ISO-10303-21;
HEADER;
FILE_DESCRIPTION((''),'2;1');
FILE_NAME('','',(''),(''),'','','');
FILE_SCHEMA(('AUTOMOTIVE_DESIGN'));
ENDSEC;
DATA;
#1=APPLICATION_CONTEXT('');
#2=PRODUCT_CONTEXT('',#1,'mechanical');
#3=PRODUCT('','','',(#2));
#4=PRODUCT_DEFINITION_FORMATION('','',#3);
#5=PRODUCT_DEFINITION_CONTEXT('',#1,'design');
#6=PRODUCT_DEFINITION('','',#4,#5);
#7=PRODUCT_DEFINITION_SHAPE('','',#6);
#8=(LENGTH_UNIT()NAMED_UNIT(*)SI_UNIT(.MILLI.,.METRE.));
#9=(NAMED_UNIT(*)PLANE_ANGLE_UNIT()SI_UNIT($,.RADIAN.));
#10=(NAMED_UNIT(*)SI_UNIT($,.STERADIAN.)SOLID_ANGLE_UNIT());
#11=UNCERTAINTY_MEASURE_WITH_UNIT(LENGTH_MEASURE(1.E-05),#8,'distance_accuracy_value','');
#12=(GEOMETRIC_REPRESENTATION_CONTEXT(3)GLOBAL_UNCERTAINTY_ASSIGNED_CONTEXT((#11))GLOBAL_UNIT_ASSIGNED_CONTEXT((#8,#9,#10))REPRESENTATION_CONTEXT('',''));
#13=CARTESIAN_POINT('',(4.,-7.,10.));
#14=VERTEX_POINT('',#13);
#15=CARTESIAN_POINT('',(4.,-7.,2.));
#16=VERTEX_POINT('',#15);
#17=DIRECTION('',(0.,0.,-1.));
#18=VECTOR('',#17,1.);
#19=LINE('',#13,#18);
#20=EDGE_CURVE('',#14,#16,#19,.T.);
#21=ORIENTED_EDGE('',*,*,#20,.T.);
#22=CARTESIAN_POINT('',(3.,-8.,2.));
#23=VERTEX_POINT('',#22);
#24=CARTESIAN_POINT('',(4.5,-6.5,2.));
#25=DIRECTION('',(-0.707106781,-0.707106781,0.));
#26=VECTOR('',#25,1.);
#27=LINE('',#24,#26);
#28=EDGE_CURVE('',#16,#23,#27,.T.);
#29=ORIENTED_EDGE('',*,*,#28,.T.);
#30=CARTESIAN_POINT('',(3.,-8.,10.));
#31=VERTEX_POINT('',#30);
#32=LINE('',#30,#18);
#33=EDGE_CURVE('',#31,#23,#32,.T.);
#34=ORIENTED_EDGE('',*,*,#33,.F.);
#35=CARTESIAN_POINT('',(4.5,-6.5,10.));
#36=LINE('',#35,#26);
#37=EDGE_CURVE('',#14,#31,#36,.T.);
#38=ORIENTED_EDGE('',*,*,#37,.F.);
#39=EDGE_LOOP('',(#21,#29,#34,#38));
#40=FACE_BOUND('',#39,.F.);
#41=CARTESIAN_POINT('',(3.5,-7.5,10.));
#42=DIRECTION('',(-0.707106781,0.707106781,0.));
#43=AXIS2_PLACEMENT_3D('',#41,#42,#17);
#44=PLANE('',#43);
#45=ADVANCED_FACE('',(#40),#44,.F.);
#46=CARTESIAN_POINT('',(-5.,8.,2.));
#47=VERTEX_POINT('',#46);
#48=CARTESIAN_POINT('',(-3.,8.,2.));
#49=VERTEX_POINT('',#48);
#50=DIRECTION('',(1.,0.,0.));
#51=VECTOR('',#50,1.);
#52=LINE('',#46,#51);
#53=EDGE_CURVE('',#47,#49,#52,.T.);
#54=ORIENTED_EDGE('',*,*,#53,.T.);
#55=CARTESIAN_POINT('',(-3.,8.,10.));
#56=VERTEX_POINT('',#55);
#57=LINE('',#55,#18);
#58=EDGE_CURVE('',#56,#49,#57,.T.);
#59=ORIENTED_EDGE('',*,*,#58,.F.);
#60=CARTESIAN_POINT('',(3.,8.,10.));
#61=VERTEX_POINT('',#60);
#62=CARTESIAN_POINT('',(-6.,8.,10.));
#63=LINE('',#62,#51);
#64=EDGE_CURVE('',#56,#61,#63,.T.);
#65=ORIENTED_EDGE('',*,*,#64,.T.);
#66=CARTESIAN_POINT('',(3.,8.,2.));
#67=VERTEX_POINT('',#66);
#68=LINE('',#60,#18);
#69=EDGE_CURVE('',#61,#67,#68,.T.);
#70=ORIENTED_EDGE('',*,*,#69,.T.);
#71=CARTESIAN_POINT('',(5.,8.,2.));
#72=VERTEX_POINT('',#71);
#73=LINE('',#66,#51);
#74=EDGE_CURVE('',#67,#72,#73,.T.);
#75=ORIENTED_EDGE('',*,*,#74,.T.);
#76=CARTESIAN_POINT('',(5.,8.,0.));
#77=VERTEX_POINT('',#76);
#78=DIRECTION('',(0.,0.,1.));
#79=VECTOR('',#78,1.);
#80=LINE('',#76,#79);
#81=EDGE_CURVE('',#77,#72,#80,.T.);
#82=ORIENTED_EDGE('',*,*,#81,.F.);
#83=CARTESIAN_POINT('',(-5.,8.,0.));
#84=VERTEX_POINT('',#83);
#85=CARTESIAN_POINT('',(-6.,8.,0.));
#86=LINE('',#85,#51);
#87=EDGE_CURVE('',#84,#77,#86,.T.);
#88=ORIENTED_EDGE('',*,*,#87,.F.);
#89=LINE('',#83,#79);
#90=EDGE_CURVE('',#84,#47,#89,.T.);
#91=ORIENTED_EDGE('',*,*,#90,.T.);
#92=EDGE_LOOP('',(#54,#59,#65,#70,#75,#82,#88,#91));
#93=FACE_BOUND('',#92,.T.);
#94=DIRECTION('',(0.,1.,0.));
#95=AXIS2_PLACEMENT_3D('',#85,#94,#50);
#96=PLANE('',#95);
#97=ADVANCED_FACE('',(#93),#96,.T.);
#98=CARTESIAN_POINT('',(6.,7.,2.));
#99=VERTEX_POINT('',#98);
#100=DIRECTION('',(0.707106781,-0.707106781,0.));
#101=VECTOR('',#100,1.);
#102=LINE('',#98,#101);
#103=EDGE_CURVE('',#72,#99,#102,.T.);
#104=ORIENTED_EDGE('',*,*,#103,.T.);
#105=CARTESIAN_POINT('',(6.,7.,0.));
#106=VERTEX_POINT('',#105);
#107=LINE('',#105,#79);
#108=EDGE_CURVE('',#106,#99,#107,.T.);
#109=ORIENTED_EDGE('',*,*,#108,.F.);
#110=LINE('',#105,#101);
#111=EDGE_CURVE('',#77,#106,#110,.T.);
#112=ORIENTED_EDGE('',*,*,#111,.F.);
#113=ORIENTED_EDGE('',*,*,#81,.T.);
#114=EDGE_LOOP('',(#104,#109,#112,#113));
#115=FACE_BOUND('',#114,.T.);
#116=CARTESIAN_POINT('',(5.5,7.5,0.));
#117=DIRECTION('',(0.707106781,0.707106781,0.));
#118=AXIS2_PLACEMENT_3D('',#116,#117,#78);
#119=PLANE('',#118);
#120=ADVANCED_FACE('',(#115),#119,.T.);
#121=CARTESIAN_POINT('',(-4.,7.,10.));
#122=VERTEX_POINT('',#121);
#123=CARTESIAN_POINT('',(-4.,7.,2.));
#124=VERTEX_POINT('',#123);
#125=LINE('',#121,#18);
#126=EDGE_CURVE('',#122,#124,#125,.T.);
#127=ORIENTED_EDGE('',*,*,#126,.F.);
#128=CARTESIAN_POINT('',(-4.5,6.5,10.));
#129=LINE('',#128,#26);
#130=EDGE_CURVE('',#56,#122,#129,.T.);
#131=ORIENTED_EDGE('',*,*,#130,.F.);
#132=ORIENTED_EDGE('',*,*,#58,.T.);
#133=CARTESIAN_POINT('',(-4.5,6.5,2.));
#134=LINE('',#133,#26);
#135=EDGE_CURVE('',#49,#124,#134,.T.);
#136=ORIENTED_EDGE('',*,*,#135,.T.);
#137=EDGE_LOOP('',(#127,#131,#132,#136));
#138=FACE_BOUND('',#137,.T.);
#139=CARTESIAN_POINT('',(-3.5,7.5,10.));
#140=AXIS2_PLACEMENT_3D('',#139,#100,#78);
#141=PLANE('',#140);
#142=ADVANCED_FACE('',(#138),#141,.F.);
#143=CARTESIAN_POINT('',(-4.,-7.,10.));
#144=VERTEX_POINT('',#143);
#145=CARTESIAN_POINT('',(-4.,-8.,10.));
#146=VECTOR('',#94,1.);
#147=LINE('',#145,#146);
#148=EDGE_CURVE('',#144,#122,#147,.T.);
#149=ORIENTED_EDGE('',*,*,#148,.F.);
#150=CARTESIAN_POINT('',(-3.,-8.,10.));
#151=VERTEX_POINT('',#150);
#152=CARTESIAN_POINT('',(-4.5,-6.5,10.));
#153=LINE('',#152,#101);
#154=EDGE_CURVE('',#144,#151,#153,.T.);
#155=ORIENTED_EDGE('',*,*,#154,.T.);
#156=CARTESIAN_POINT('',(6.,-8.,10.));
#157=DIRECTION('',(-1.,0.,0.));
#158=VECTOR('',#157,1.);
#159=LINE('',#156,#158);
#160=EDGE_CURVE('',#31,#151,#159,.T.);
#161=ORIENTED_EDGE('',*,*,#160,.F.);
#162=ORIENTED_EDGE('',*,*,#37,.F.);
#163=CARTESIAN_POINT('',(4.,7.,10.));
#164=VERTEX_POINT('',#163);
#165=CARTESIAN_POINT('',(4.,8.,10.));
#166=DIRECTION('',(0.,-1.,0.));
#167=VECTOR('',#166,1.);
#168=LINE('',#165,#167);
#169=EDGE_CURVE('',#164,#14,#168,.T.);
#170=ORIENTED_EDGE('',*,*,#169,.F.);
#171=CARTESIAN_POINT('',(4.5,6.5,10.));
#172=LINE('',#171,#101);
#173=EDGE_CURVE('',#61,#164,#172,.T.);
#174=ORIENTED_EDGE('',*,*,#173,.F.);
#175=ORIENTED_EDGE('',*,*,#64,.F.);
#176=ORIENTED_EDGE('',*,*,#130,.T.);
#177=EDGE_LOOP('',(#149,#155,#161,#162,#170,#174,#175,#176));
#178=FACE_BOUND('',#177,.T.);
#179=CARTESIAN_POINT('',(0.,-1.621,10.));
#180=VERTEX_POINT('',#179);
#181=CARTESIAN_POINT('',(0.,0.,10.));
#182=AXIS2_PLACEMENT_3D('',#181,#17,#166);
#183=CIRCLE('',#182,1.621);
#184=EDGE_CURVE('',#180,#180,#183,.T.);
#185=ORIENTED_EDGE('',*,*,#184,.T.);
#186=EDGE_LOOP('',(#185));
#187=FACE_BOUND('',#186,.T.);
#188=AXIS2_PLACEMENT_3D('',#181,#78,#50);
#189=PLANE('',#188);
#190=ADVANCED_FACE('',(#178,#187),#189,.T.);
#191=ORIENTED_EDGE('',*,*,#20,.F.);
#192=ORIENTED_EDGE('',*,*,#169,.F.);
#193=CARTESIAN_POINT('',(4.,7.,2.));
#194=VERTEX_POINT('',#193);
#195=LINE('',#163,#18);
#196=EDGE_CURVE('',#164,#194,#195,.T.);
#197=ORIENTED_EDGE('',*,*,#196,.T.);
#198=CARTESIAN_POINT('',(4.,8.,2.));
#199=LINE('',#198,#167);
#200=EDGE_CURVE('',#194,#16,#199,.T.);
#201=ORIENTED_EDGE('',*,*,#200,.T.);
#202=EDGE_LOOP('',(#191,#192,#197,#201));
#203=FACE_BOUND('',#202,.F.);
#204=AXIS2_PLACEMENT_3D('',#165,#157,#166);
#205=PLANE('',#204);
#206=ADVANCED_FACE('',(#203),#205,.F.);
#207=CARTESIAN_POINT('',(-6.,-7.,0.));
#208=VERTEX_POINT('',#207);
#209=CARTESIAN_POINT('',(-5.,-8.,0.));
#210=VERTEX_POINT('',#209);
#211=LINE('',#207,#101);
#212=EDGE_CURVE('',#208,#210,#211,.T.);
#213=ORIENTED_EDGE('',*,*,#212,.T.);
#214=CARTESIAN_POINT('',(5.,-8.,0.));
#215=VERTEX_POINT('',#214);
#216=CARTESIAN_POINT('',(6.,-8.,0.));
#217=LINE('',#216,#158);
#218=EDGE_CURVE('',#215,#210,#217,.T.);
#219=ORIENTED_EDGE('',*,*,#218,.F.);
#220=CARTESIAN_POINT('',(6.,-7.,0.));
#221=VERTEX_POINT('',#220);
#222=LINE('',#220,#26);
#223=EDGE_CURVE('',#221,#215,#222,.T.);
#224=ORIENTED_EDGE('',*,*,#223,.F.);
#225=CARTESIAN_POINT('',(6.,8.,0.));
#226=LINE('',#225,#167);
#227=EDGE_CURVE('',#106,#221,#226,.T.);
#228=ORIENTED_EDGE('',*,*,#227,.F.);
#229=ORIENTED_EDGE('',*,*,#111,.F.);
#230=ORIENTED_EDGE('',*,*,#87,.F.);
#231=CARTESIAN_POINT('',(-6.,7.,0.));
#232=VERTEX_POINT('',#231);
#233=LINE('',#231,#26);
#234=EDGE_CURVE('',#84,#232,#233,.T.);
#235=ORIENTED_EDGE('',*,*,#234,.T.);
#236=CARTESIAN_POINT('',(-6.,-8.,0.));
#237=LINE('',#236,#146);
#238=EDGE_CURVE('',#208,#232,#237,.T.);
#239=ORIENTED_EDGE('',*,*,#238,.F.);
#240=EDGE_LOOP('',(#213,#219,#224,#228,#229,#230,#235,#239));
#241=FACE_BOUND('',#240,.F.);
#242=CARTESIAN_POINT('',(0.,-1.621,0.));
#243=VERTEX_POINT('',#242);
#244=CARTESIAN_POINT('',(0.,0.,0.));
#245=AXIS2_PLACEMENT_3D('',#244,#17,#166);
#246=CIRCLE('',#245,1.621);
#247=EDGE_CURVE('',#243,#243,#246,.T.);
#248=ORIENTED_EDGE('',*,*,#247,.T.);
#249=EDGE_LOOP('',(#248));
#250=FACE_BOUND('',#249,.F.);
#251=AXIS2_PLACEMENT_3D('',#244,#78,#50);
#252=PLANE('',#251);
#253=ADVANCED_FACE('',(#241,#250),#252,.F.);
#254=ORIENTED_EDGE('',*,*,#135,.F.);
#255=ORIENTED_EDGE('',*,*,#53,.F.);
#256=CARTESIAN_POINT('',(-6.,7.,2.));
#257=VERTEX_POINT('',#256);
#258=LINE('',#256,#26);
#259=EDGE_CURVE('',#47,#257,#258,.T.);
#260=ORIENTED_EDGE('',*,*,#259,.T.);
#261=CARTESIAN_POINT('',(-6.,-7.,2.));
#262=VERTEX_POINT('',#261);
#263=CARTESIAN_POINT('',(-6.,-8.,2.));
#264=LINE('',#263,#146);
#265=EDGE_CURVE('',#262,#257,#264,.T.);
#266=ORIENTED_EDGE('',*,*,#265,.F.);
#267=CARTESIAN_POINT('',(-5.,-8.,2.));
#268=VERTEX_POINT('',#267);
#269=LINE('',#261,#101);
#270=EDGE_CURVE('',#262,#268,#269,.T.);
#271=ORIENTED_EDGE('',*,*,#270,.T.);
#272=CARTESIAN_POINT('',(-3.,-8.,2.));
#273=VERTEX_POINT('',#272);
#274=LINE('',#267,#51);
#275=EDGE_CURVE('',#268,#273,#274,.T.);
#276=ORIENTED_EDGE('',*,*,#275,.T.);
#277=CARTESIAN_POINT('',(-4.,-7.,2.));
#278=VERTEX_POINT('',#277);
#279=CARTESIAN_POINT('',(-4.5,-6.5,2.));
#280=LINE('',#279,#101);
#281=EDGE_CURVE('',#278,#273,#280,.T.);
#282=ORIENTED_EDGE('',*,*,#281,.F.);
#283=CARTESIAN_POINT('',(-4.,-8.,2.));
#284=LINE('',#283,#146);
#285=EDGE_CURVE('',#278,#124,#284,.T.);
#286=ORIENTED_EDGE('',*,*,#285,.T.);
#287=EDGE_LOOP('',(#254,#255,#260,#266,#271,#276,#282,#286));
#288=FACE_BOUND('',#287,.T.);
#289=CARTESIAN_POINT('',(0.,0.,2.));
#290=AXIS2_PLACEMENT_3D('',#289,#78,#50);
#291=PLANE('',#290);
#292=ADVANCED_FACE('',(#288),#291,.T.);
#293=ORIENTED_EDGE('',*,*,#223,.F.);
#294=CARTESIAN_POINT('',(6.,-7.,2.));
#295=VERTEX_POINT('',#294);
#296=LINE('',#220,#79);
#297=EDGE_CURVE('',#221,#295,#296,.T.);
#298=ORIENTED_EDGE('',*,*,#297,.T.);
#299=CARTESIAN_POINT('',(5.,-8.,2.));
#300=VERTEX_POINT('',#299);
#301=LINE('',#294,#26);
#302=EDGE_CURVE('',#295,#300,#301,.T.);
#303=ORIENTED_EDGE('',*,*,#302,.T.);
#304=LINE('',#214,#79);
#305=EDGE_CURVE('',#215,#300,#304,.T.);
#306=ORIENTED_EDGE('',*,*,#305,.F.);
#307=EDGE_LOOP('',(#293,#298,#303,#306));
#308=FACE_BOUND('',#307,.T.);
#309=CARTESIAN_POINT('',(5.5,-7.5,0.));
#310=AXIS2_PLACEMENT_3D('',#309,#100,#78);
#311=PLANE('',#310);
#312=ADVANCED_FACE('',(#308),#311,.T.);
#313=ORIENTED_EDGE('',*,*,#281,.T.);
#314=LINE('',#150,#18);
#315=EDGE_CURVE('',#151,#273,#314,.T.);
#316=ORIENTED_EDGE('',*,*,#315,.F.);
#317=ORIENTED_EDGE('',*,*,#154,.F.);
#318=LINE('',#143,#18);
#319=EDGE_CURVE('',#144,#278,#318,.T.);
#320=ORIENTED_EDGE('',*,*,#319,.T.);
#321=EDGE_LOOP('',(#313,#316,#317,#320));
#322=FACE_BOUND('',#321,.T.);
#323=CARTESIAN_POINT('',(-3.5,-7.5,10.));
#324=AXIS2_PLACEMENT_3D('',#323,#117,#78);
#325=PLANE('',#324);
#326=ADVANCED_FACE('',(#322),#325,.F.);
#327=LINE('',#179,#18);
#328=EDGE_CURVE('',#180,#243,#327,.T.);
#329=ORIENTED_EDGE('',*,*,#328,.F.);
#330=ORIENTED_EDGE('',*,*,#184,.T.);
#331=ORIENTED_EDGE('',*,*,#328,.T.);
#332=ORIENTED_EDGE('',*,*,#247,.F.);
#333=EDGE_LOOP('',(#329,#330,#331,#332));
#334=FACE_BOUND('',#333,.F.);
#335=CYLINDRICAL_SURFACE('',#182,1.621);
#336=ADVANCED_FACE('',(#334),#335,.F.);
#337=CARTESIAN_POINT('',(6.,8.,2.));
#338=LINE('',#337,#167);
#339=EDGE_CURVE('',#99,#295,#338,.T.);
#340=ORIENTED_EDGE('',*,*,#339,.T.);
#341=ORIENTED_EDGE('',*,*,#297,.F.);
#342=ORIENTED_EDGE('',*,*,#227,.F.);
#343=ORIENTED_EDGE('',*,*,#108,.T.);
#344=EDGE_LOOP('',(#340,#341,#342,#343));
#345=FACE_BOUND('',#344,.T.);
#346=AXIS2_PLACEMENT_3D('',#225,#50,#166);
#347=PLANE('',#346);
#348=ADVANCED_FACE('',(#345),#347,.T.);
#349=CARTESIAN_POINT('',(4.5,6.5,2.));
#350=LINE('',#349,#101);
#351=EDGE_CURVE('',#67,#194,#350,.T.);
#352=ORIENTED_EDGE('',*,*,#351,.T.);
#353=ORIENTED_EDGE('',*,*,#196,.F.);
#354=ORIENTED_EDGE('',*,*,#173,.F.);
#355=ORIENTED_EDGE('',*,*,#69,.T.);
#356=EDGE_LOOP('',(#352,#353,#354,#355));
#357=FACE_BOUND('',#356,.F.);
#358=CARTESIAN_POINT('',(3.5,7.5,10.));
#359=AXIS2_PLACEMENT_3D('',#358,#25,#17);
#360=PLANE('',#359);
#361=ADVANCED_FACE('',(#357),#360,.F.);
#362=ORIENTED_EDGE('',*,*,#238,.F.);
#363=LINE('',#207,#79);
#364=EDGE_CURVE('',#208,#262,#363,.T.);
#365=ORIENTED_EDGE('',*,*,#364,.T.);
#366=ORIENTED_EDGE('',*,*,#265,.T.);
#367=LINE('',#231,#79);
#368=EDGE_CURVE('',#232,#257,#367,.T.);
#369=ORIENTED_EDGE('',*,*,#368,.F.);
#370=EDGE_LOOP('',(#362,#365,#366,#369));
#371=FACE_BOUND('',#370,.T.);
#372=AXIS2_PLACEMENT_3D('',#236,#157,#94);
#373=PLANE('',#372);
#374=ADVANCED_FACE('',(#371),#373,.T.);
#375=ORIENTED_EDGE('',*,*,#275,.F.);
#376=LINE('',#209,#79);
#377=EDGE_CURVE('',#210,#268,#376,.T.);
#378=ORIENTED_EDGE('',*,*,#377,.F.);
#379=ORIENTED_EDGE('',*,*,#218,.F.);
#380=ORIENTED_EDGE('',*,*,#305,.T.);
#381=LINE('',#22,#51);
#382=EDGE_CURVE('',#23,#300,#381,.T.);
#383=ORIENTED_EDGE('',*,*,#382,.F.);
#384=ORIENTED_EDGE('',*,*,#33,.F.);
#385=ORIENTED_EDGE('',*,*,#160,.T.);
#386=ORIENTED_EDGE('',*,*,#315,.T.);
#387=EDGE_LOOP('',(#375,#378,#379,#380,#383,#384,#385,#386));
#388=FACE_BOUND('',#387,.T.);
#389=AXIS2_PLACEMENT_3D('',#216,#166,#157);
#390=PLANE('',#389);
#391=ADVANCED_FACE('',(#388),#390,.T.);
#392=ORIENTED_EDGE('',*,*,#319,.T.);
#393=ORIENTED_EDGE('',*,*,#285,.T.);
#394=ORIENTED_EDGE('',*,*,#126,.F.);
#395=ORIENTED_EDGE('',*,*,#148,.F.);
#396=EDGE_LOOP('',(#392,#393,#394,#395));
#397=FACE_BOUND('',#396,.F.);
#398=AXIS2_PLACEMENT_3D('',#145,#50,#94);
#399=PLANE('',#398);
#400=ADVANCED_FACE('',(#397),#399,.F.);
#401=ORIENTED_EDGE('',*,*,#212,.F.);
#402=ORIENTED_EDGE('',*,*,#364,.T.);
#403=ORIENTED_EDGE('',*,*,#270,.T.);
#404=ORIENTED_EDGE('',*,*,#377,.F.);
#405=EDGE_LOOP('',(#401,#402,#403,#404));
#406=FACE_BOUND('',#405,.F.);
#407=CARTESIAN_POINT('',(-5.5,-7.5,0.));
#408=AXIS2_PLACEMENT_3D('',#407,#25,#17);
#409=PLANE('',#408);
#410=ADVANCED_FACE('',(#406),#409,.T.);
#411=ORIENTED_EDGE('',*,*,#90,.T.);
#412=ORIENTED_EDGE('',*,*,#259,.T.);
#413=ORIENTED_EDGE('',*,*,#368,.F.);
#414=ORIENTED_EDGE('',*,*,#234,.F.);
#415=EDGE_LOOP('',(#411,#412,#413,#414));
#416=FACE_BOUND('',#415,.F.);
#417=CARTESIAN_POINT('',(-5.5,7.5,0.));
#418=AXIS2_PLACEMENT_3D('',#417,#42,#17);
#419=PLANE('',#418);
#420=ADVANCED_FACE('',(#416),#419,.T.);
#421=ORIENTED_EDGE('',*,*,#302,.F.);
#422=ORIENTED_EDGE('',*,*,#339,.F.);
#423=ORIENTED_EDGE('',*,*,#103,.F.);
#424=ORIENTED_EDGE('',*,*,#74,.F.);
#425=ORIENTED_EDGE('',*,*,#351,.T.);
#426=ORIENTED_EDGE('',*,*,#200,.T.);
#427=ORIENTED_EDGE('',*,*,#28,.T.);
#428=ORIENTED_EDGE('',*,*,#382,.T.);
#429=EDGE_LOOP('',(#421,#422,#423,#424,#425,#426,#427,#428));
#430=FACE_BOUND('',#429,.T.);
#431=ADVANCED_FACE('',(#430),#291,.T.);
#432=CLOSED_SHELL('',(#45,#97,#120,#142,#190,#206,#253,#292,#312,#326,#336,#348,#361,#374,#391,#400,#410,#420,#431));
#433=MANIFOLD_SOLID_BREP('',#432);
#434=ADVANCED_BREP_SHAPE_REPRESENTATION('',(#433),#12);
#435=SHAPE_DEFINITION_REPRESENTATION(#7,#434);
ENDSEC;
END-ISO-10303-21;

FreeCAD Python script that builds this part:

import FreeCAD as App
import Part
import Sketcher
Q = App.Units.Quantity


def edges_at(feature, points):
    """Names of the edges that pass closest to the given points."""
    edges = feature.Shape.Edges
    near = lambda p: min(range(len(edges)), key=lambda i: edges[i].distToShape(Part.Vertex(*p))[0])
    return sorted({f"Edge{near(p) + 1}" for p in points})

doc = App.newDocument("Part")
params = doc.addObject("Spreadsheet::Sheet", "Params")
for row, (alias, value) in enumerate([
    ("sketch1_width", "12 mm"),
    ("sketch1_height", "16 mm"),
    ("pad1_length", "10 mm"),
    ("sketch2_height", "16 mm"),
    ("pocket1_length", "8 mm"),
    ("chamfer_size", "1 mm"),
    ("hole_diameter", "3.242 mm"),
], start=1):
    params.set(f"A{row}", alias)
    params.set(f"B{row}", "=" + value)
    params.setAlias(f"B{row}", alias)

body = doc.addObject("PartDesign::Body", "Body")

sketch1 = body.newObject("Sketcher::SketchObject", "Sketch")
sketch1.AttachmentSupport = (doc.getObject("XY_Plane"), [""])
sketch1.MapMode = "FlatFace"
sketch1.addGeometry([
    Part.LineSegment(App.Vector(6, 8, 0), App.Vector(-6, 8, 0)),
    Part.LineSegment(App.Vector(-6, 8, 0), App.Vector(-6, -8, 0)),
    Part.LineSegment(App.Vector(-6, -8, 0), App.Vector(6, -8, 0)),
    Part.LineSegment(App.Vector(6, -8, 0), App.Vector(6, 8, 0)),
], False)
sketch1.addConstraint([
    Sketcher.Constraint("Coincident", 0, 2, 1, 1),
    Sketcher.Constraint("Coincident", 1, 2, 2, 1),
    Sketcher.Constraint("Coincident", 2, 2, 3, 1),
    Sketcher.Constraint("Coincident", 3, 2, 0, 1),
    Sketcher.Constraint("Horizontal", 0),
    Sketcher.Constraint("Vertical", 1),
    Sketcher.Constraint("Horizontal", 2),
    Sketcher.Constraint("Vertical", 3),
    Sketcher.Constraint("Symmetric", 0, 2, 2, 2, -1, 1),
    Sketcher.Constraint("DistanceX", 0, 2, 0, 1, Q("12 mm")),
    Sketcher.Constraint("DistanceY", 1, 2, 1, 1, Q("16 mm")),
])
sketch1.setExpression("Constraints[9]", "Params.sketch1_width")
sketch1.setExpression("Constraints[10]", "Params.sketch1_height")
pad1 = body.newObject("PartDesign::Pad", "Pad")
pad1.Profile = sketch1
pad1.setExpression("Length", "Params.pad1_length")

sketch2 = body.newObject("Sketcher::SketchObject", "Sketch001")
sketch2.AttachmentSupport = (doc.getObject("XY_Plane"), [""])
sketch2.MapMode = "FlatFace"
sketch2.AttachmentOffset = App.Placement(App.Vector(0, 0, 10), App.Rotation())
sketch2.addGeometry([
    Part.LineSegment(App.Vector(4, -8, 0), App.Vector(6, -8, 0)),
    Part.LineSegment(App.Vector(6, -8, 0), App.Vector(6, 8, 0)),
    Part.LineSegment(App.Vector(6, 8, 0), App.Vector(4, 8, 0)),
    Part.LineSegment(App.Vector(4, 8, 0), App.Vector(4, -8, 0)),
    Part.LineSegment(App.Vector(-6, -8, 0), App.Vector(-4, -8, 0)),
    Part.LineSegment(App.Vector(-4, -8, 0), App.Vector(-4, 8, 0)),
    Part.LineSegment(App.Vector(-4, 8, 0), App.Vector(-6, 8, 0)),
    Part.LineSegment(App.Vector(-6, 8, 0), App.Vector(-6, -8, 0)),
], False)
sketch2.addConstraint([
    Sketcher.Constraint("Coincident", 0, 2, 1, 1),
    Sketcher.Constraint("Coincident", 1, 2, 2, 1),
    Sketcher.Constraint("Coincident", 2, 2, 3, 1),
    Sketcher.Constraint("Coincident", 3, 2, 0, 1),
    Sketcher.Constraint("Coincident", 4, 2, 5, 1),
    Sketcher.Constraint("Coincident", 5, 2, 6, 1),
    Sketcher.Constraint("Coincident", 6, 2, 7, 1),
    Sketcher.Constraint("Coincident", 7, 2, 4, 1),
    Sketcher.Constraint("Horizontal", 0),
    Sketcher.Constraint("Vertical", 1),
    Sketcher.Constraint("Horizontal", 2),
    Sketcher.Constraint("Vertical", 3),
    Sketcher.Constraint("Horizontal", 4),
    Sketcher.Constraint("Vertical", 5),
    Sketcher.Constraint("Horizontal", 6),
    Sketcher.Constraint("Vertical", 7),
    Sketcher.Constraint("Symmetric", 2, 2, 4, 2, -1, 1),
    Sketcher.Constraint("Symmetric", 0, 2, 6, 2, -1, 1),
    Sketcher.Constraint("Horizontal", 3, 2, 4, 2),
    Sketcher.Constraint("DistanceY", 1, 1, 1, 2, Q("16 mm")),
    Sketcher.Constraint("DistanceX", 4, 2, 3, 2, Q("8 mm")),
    Sketcher.Constraint("DistanceX", 6, 2, 1, 2, Q("12 mm")),
])
sketch2.setExpression("Constraints[19]", "Params.sketch2_height")
pocket1 = body.newObject("PartDesign::Pocket", "Pocket")
pocket1.Profile = sketch2
pocket1.setExpression("Length", "Params.pocket1_length")
doc.recompute()

chamfer = body.newObject("PartDesign::Chamfer", "Chamfer")
chamfer.Base = (pocket1, edges_at(pocket1, [
    (6, -8, 1),
    (-6, -8, 1),
    (6, 8, 1),
    (-6, 8, 1),
    (-4, -8, 6),
    (-4, 8, 6),
    (4, 8, 6),
    (4, -8, 6),
]))
chamfer.setExpression("Size", "Params.chamfer_size")

sketch3 = body.newObject("Sketcher::SketchObject", "Sketch002")
sketch3.AttachmentSupport = (doc.getObject("XY_Plane"), [""])
sketch3.MapMode = "FlatFace"
sketch3.AttachmentOffset = App.Placement(App.Vector(0, 0, 10), App.Rotation())
sketch3.addGeometry(Part.Circle(App.Vector(0, 0, 0), App.Vector(0, 0, 1), 1.6), False)
sketch3.addConstraint([
    Sketcher.Constraint("Coincident", 0, 3, -1, 1),
    Sketcher.Constraint("Diameter", 0, Q("3.242 mm")),
])
doc.recompute()
hole = body.newObject("PartDesign::Hole", "Hole")
hole.Profile = sketch3
hole.ThreadType = "None"
hole.setExpression("Diameter", "Params.hole_diameter")
hole.DepthType = "ThroughAll"

doc.recompute()
